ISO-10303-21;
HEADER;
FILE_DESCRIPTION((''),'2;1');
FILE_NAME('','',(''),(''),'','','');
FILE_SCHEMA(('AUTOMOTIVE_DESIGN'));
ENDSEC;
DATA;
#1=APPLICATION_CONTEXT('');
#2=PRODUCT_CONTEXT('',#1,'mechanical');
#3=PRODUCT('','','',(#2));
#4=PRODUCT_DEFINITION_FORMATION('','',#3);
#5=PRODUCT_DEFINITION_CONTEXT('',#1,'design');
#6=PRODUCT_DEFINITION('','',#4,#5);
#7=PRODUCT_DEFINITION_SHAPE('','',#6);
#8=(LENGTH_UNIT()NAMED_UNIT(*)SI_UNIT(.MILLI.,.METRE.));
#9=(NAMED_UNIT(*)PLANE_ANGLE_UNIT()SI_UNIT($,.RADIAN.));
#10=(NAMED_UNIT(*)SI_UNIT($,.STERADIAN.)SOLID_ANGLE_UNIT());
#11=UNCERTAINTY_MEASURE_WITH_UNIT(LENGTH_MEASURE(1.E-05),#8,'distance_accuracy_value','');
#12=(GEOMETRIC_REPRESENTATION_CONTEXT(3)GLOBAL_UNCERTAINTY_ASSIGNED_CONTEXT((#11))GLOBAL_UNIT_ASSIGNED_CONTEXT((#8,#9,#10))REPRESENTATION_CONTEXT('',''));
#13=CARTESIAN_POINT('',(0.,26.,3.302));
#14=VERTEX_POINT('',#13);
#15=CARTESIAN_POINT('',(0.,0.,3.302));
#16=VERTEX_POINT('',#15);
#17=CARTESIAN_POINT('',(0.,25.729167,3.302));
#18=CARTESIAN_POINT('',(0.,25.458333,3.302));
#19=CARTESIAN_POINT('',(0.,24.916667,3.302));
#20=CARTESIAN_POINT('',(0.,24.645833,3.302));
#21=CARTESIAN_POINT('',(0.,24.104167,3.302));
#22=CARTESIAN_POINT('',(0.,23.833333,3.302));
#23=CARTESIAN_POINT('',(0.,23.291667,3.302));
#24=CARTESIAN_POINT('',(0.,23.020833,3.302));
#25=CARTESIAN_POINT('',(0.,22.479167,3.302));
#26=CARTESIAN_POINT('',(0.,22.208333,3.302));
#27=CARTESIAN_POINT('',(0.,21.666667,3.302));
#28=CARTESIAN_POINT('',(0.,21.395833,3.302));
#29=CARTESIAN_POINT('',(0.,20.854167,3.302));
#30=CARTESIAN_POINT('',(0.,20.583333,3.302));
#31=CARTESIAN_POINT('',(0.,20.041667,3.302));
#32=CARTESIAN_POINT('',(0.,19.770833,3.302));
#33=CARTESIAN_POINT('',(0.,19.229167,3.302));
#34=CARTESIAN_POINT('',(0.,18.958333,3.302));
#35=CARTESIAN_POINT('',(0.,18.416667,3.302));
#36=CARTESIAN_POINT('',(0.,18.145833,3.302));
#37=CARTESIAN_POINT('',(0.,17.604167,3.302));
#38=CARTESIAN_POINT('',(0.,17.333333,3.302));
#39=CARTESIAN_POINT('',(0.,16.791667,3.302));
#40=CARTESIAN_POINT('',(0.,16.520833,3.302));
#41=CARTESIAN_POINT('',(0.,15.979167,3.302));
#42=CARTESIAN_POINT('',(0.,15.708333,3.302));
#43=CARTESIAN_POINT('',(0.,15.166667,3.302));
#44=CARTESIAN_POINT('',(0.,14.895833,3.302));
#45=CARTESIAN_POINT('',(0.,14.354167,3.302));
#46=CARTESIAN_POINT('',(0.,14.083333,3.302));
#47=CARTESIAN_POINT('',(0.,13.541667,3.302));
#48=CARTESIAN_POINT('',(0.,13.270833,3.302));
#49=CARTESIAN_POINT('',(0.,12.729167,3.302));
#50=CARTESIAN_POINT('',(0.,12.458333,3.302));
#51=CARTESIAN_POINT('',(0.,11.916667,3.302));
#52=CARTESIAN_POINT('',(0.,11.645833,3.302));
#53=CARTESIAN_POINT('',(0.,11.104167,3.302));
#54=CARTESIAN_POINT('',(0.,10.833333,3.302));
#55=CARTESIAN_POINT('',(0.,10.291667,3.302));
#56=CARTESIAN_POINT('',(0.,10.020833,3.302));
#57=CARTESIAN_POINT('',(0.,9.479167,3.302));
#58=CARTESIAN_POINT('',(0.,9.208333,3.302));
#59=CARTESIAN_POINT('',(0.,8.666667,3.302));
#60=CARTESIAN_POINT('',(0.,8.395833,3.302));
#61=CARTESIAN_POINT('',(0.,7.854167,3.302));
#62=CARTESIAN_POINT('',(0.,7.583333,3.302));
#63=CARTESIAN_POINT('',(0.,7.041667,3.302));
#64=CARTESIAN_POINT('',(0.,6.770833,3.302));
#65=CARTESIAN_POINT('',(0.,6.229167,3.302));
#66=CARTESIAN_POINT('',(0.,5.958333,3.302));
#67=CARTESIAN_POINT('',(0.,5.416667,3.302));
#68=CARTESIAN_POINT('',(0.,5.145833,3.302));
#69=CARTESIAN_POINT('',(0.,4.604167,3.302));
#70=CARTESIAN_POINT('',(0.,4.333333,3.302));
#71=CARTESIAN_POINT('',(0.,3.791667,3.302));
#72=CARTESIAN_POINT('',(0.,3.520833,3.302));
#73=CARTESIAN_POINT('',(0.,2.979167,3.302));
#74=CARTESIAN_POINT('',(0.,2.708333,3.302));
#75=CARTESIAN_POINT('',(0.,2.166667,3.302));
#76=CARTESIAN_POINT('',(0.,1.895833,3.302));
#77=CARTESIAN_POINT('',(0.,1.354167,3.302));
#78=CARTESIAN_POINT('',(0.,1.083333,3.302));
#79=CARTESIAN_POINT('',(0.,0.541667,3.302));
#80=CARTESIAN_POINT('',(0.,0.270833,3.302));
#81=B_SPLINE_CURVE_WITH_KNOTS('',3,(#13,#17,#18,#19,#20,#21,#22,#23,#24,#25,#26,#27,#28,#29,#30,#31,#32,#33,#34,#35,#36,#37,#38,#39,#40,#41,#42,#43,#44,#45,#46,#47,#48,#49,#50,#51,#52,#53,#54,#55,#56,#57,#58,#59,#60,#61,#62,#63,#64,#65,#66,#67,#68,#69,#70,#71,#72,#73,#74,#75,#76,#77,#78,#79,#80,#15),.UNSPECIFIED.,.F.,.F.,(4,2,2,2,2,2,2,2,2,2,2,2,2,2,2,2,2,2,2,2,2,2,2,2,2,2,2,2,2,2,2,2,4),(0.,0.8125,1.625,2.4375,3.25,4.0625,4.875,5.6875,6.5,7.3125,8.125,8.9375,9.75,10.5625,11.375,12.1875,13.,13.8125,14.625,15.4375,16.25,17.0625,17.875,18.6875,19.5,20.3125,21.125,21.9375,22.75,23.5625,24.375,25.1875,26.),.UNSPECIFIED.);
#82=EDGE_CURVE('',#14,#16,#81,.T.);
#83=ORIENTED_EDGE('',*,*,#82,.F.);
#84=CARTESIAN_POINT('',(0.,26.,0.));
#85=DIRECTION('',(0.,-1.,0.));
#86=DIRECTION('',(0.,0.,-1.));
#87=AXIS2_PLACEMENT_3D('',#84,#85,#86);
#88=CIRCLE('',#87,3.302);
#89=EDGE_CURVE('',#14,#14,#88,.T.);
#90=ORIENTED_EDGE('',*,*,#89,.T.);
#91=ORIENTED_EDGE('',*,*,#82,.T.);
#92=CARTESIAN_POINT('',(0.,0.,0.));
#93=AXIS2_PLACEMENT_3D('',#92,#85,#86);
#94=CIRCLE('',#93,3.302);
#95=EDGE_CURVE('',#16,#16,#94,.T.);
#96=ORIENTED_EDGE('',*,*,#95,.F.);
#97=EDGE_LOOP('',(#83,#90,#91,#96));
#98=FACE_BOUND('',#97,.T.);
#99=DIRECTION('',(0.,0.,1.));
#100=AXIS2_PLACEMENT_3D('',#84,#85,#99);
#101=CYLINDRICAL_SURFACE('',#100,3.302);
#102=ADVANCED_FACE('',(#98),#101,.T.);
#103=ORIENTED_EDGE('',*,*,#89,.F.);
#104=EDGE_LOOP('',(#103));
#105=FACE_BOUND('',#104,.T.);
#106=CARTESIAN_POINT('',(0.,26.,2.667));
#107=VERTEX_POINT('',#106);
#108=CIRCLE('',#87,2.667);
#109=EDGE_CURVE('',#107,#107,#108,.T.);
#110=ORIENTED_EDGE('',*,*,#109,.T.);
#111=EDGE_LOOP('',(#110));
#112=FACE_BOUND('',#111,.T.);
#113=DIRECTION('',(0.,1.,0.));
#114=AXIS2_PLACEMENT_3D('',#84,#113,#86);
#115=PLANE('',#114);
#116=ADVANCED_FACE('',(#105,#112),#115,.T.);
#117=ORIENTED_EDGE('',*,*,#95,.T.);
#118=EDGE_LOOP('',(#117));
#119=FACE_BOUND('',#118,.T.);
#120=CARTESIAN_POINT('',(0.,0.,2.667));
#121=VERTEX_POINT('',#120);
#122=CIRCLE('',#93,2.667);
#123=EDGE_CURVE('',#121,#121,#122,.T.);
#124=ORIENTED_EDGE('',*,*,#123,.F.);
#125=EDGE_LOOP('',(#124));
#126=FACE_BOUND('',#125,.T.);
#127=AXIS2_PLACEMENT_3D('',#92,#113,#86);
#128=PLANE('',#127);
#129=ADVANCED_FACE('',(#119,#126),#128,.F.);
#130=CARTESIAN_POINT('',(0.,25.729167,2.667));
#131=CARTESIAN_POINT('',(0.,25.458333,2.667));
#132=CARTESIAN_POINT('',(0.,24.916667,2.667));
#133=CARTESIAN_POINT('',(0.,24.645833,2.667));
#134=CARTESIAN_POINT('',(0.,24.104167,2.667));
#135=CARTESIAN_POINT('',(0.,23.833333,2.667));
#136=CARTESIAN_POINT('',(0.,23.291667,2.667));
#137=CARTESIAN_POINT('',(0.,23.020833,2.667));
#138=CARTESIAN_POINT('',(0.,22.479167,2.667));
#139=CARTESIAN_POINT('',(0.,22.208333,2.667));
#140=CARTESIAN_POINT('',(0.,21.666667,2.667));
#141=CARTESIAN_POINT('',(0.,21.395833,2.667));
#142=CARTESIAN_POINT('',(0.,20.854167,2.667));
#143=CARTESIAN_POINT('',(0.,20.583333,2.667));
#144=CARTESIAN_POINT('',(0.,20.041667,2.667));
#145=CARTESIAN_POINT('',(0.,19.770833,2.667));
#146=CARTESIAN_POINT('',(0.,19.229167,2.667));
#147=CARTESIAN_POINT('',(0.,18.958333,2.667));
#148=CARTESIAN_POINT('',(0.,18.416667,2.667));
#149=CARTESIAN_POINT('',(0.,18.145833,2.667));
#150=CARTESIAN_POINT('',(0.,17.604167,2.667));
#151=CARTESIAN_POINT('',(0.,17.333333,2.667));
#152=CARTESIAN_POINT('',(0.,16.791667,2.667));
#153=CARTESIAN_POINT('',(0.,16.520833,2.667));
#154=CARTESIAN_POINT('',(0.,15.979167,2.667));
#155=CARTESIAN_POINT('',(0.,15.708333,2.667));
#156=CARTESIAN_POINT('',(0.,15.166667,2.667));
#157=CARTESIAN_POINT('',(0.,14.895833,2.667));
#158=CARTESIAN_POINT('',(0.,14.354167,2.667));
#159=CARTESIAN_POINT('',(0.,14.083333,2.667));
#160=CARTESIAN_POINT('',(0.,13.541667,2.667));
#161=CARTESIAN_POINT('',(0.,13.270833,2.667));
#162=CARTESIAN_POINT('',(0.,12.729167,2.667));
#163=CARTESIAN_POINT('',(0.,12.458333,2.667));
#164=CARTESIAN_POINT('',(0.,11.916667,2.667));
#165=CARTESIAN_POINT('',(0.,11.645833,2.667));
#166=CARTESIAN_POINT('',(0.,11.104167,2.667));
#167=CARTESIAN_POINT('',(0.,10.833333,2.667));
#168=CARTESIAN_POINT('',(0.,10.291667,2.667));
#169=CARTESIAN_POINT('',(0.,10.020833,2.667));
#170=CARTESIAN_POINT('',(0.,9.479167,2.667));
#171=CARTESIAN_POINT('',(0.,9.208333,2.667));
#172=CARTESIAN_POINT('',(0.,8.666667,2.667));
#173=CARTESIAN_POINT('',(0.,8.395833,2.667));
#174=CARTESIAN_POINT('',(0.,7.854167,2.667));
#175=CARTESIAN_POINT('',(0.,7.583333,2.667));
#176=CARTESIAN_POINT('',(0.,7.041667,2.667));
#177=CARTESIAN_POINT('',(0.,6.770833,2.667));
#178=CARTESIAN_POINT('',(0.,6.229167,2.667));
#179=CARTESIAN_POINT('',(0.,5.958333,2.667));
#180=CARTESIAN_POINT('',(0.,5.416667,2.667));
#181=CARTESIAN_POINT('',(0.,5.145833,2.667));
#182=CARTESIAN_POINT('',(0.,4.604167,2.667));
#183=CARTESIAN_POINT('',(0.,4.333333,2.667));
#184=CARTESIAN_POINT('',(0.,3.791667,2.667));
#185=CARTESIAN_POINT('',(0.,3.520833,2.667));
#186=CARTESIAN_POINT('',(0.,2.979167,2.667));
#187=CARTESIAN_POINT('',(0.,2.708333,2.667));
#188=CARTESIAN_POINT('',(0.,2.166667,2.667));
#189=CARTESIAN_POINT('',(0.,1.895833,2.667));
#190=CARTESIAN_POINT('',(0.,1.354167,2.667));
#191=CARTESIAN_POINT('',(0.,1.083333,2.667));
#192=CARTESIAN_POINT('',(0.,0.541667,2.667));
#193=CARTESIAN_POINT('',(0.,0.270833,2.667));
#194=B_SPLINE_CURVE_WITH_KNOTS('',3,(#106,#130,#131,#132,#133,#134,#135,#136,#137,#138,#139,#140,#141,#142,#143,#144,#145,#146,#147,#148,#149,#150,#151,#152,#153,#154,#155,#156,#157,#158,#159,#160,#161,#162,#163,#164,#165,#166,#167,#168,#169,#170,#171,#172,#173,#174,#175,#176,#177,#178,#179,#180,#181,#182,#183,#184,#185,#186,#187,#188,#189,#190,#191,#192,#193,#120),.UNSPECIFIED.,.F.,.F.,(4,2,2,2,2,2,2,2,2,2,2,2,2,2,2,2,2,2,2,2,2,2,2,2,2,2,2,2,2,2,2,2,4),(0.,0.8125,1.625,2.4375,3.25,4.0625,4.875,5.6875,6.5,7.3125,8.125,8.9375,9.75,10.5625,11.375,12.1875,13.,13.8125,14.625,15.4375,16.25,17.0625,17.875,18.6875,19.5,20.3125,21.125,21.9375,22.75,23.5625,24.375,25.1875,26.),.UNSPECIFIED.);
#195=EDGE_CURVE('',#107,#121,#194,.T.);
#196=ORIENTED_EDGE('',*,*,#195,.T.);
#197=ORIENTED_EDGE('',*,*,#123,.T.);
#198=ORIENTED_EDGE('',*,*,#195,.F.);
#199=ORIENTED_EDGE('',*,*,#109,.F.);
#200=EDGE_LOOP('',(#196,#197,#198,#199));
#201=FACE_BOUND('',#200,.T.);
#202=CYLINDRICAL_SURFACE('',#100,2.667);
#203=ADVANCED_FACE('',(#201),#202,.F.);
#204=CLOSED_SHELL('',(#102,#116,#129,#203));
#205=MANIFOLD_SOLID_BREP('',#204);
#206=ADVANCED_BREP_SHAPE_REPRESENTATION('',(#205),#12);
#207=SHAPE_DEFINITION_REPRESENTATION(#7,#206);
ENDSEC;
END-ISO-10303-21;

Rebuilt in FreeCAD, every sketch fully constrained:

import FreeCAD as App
import Part
import Sketcher
Q = App.Units.Quantity

doc = App.newDocument("Part")
params = doc.addObject("Spreadsheet::Sheet", "Params")
for row, (alias, value) in enumerate([
    ("sketch1_diameter", "0.26 in"),
    ("sketch1_diameter2", "0.21 in"),
    ("pad1_length", "26 mm"),
], start=1):
    params.set(f"A{row}", alias)
    params.set(f"B{row}", "=" + value)
    params.setAlias(f"B{row}", alias)

body = doc.addObject("PartDesign::Body", "Body")

# Sketch on XZ plane
sketch1 = body.newObject("Sketcher::SketchObject", "Sketch")
sketch1.AttachmentSupport = (doc.getObject("XZ_Plane"), [""])
sketch1.MapMode = "FlatFace"
sketch1.addGeometry([
    Part.Circle(App.Vector(0, 0, 0), App.Vector(0, 0, 1), 3.3),
    Part.Circle(App.Vector(0, 0, 0), App.Vector(0, 0, 1), 2.7),
], False)
sketch1.addConstraint([
    Sketcher.Constraint("Coincident", 0, 3, -1, 1),
    Sketcher.Constraint("Coincident", 1, 3, -1, 1),
    Sketcher.Constraint("Diameter", 0, Q("0.26 in")),
    Sketcher.Constraint("Diameter", 1, Q("0.21 in")),
])
sketch1.setExpression("Constraints[2]", "Params.sketch1_diameter")
sketch1.setExpression("Constraints[3]", "Params.sketch1_diameter2")
pad1 = body.newObject("PartDesign::Pad", "Pad")
pad1.Profile = sketch1
pad1.setExpression("Length", "Params.pad1_length")
pad1.Reversed = True

doc.recompute()
